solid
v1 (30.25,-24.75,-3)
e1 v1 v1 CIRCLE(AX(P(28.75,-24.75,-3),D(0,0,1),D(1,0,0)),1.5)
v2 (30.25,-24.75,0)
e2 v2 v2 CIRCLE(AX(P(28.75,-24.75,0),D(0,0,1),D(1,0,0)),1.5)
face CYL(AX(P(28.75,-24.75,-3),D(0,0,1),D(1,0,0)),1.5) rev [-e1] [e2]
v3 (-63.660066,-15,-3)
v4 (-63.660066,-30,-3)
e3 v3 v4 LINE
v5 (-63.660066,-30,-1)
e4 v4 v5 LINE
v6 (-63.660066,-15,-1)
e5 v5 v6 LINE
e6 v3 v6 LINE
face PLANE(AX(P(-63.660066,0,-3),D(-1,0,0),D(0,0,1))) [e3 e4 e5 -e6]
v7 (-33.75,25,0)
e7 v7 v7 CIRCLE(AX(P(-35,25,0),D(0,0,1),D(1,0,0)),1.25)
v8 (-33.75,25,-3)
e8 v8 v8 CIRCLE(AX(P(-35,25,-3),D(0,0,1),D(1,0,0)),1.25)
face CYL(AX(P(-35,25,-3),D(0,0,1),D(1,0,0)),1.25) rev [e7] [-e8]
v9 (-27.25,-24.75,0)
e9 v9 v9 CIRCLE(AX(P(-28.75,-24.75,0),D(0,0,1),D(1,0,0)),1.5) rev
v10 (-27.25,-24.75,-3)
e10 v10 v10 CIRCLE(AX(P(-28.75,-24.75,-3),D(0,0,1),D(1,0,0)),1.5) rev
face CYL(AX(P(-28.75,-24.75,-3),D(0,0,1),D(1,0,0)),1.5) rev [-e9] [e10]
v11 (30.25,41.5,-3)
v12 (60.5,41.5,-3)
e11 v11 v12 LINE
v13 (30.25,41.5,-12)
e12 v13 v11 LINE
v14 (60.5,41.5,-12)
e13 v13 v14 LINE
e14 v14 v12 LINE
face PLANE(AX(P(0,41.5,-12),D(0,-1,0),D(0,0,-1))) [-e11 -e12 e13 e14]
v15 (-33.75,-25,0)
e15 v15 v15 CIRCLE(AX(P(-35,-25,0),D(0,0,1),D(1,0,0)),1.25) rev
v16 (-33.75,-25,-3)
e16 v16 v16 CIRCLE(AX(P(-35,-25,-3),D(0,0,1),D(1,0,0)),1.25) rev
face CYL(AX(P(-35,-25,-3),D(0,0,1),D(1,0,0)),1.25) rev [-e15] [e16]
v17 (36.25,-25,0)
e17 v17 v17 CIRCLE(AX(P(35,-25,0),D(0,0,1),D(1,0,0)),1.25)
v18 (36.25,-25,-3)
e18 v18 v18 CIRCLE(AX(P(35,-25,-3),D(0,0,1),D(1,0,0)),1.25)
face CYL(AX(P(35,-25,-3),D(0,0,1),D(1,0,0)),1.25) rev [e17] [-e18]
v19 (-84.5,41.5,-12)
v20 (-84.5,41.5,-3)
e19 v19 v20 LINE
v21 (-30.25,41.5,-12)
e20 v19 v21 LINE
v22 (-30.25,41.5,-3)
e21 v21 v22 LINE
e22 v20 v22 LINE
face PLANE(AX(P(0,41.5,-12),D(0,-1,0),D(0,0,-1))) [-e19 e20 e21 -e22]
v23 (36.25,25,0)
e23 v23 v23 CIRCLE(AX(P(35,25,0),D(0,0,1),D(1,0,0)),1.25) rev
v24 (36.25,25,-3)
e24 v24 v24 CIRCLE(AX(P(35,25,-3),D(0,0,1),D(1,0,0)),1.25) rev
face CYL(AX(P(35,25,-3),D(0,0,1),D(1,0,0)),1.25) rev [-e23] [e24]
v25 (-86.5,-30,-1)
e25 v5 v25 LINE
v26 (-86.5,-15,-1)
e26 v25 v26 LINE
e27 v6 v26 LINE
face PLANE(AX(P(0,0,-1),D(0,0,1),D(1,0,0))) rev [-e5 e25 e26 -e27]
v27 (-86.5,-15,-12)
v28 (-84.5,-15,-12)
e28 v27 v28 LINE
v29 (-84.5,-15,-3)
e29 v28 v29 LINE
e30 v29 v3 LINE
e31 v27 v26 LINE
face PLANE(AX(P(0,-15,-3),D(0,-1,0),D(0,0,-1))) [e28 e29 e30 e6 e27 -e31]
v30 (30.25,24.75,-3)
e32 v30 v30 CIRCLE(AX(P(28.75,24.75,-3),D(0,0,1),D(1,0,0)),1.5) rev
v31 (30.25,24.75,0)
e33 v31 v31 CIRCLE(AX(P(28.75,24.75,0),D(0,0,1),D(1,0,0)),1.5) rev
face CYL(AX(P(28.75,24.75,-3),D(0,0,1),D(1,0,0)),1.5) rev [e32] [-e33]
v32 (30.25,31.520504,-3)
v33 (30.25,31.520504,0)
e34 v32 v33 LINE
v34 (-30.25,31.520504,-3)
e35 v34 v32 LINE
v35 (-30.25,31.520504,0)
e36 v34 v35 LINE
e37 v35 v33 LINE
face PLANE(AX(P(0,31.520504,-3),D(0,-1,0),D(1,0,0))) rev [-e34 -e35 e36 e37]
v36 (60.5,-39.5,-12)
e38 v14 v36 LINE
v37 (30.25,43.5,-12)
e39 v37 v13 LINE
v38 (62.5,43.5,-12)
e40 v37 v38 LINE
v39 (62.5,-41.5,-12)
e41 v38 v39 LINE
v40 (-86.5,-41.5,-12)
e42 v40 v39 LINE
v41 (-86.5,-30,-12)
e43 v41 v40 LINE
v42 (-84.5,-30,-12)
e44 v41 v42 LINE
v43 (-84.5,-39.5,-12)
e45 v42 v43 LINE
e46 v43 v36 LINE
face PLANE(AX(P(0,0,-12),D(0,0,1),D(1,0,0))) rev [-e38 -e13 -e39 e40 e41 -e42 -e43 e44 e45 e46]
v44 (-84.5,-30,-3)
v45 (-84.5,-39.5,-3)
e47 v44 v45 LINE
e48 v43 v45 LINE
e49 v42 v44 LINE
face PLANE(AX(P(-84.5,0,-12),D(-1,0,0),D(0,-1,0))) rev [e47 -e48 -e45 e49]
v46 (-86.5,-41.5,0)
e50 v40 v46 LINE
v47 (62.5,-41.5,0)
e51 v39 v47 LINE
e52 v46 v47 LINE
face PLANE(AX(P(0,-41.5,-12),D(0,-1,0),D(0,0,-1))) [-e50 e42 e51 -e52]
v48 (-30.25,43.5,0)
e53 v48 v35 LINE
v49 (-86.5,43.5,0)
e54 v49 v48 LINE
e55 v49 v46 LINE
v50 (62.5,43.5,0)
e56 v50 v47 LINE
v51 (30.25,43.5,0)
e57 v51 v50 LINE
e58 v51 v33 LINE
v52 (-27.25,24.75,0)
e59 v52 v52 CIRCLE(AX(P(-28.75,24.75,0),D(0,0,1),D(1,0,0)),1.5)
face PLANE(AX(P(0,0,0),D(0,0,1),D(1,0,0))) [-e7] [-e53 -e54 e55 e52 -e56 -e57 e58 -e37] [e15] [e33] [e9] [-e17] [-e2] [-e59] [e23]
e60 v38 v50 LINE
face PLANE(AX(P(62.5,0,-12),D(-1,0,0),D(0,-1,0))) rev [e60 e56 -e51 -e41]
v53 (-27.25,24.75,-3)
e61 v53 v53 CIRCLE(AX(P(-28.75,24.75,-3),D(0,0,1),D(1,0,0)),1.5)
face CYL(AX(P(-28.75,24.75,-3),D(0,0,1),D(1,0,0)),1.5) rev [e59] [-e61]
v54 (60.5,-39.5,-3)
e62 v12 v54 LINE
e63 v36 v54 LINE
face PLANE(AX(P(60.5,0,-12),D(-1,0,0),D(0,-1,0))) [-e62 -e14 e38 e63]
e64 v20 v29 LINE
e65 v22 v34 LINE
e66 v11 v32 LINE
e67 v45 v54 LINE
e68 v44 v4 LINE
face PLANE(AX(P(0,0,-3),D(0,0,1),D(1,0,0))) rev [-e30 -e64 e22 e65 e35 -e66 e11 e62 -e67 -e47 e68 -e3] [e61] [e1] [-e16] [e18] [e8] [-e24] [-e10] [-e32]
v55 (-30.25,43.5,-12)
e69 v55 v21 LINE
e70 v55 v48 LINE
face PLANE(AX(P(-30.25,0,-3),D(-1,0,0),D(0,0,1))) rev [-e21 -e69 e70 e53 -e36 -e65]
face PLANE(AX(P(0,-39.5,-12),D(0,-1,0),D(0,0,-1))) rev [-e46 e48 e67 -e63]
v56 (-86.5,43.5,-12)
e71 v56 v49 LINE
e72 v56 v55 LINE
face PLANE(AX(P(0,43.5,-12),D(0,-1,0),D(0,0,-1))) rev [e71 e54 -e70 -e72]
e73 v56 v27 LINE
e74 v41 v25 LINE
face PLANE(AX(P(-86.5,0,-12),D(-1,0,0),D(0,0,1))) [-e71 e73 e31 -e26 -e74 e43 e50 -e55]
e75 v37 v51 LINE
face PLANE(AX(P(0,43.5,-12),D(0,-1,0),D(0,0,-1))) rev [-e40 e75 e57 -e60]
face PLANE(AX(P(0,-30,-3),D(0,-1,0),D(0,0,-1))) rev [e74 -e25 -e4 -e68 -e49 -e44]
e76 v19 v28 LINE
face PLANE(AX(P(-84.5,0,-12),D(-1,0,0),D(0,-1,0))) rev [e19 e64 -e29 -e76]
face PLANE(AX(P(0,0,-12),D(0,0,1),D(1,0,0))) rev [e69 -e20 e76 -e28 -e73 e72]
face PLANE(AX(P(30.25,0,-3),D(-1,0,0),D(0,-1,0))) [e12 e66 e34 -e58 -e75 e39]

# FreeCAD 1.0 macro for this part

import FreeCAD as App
import Part
import Sketcher
from FreeCAD import Vector
Q = App.Units.Quantity

doc = App.newDocument("Part")
body = doc.addObject("PartDesign::Body", "Body")

# Sketch on XY plane
sketch1 = doc.addObject("Sketcher::SketchObject", "Sketch")
body.addObject(sketch1)
sketch1.AttachmentSupport = (doc.XY_Plane, [""])
sketch1.MapMode = "FlatFace"
sketch1.addGeometry([
    Part.LineSegment(Vector(-30.2, 31.5, 0), Vector(-30.2, 41.5, 0)),  # 0
    Part.LineSegment(Vector(-30.2, 41.5, 0), Vector(-84.5, 41.5, 0)),  # 1
    Part.LineSegment(Vector(-84.5, 41.5, 0), Vector(-84.5, -15, 0)),  # 2
    Part.LineSegment(Vector(-84.5, -15, 0), Vector(-63.7, -15, 0)),  # 3
    Part.LineSegment(Vector(-63.7, -15, 0), Vector(-63.7, -30, 0)),  # 4
    Part.LineSegment(Vector(-63.7, -30, 0), Vector(-84.5, -30, 0)),  # 5
    Part.LineSegment(Vector(-84.5, -30, 0), Vector(-84.5, -39.5, 0)),  # 6
    Part.LineSegment(Vector(-84.5, -39.5, 0), Vector(60.5, -39.5, 0)),  # 7
    Part.LineSegment(Vector(60.5, -39.5, 0), Vector(60.5, 41.5, 0)),  # 8
    Part.LineSegment(Vector(60.5, 41.5, 0), Vector(30.2, 41.5, 0)),  # 9
    Part.LineSegment(Vector(30.2, 41.5, 0), Vector(30.2, 31.5, 0)),  # 10
    Part.LineSegment(Vector(30.2, 31.5, 0), Vector(-30.2, 31.5, 0)),  # 11
    Part.Circle(Vector(-35, -25, 0), Vector(0, 0, 1), 1.2),  # 12
    Part.Circle(Vector(-28.8, -24.8, 0), Vector(0, 0, 1), 1.5),  # 13
    Part.Circle(Vector(28.8, -24.8, 0), Vector(0, 0, 1), 1.5),  # 14
    Part.Circle(Vector(35, -25, 0), Vector(0, 0, 1), 1.2),  # 15
    Part.Circle(Vector(-35, 25, 0), Vector(0, 0, 1), 1.2),  # 16
    Part.Circle(Vector(-28.8, 24.8, 0), Vector(0, 0, 1), 1.5),  # 17
    Part.Circle(Vector(28.8, 24.8, 0), Vector(0, 0, 1), 1.5),  # 18
    Part.Circle(Vector(35, 25, 0), Vector(0, 0, 1), 1.2),  # 19
], False)
sketch1.addConstraint([
    Sketcher.Constraint("Coincident", 0, 2, 1, 1),
    Sketcher.Constraint("Coincident", 1, 2, 2, 1),
    Sketcher.Constraint("Coincident", 2, 2, 3, 1),
    Sketcher.Constraint("Coincident", 3, 2, 4, 1),
    Sketcher.Constraint("Coincident", 4, 2, 5, 1),
    Sketcher.Constraint("Coincident", 5, 2, 6, 1),
    Sketcher.Constraint("Coincident", 6, 2, 7, 1),
    Sketcher.Constraint("Coincident", 7, 2, 8, 1),
    Sketcher.Constraint("Coincident", 8, 2, 9, 1),
    Sketcher.Constraint("Coincident", 9, 2, 10, 1),
    Sketcher.Constraint("Coincident", 10, 2, 11, 1),
    Sketcher.Constraint("Coincident", 11, 2, 0, 1),
    Sketcher.Constraint("Vertical", 0),
    Sketcher.Constraint("Horizontal", 1),
    Sketcher.Constraint("Vertical", 2),
    Sketcher.Constraint("Horizontal", 3),
    Sketcher.Constraint("Vertical", 4),
    Sketcher.Constraint("Horizontal", 5),
    Sketcher.Constraint("Vertical", 6),
    Sketcher.Constraint("Horizontal", 7),
    Sketcher.Constraint("Vertical", 8),
    Sketcher.Constraint("Horizontal", 9),
    Sketcher.Constraint("Vertical", 10),
    Sketcher.Constraint("Horizontal", 11),
    Sketcher.Constraint("Equal", 13, 14),
    Sketcher.Constraint("Equal", 12, 15),
    Sketcher.Constraint("Equal", 15, 16),
    Sketcher.Constraint("Equal", 14, 17),
    Sketcher.Constraint("Equal", 17, 18),
    Sketcher.Constraint("Equal", 16, 19),
    Sketcher.Constraint("Symmetric", 15, 3, 16, 3, -1, 1),
    Sketcher.Constraint("Symmetric", 14, 3, 17, 3, -1, 1),
    Sketcher.Constraint("Symmetric", 13, 3, 18, 3, -1, 1),
    Sketcher.Constraint("Symmetric", 12, 3, 19, 3, -1, 1),
    Sketcher.Constraint("Symmetric", 13, 3, 14, 3, -2),
    Sketcher.Constraint("Symmetric", 12, 3, 15, 3, -2),
    Sketcher.Constraint("Symmetric", 0, 2, 9, 2, -2),
    Sketcher.Constraint("Vertical", 2, 2, 5, 2),
    Sketcher.Constraint("Diameter", 13, Q("3 mm")),
    Sketcher.Constraint("Diameter", 12, Q("2.5 mm")),
    Sketcher.Constraint("DistanceX", 7, 1, 7, 2, Q("145 mm")),
    Sketcher.Constraint("DistanceY", 4, 2, 4, 1, Q("15 mm")),
    Sketcher.Constraint("DistanceY", 8, 1, 8, 2, Q("81 mm")),
    Sketcher.Constraint("DistanceX", 11, 2, 11, 1, Q("60.5 mm")),
    Sketcher.Constraint("DistanceY", 2, 2, 2, 1, Q("56.5 mm")),
    Sketcher.Constraint("DistanceX", 12, 3, -1, 1, Q("35 mm")),
    Sketcher.Constraint("DistanceY", 12, 3, -1, 1, Q("25 mm")),
    Sketcher.Constraint("DistanceY", 2, 2, -1, 1, Q("15 mm")),
    Sketcher.Constraint("DistanceX", 0, 2, 18, 3, Q("59 mm")),
    Sketcher.Constraint("DistanceX", 1, 2, 1, 1, Q("54.25 mm")),
    Sketcher.Constraint("DistanceY", 13, 3, 17, 3, Q("49.5 mm")),
    Sketcher.Constraint("DistanceX", 3, 1, 3, 2, Q("20.839934 mm")),
    Sketcher.Constraint("DistanceY", 0, 1, 0, 2, Q("9.979496 mm")),
])
pad1 = doc.addObject("PartDesign::Pad", "Pad")
body.addObject(pad1)
pad1.Profile = sketch1
pad1.Length = 3
pad1.Reversed = True

# Sketch on XY plane
sketch2 = doc.addObject("Sketcher::SketchObject", "Sketch001")
body.addObject(sketch2)
sketch2.AttachmentSupport = (doc.XY_Plane, [""])
sketch2.MapMode = "FlatFace"
sketch2.addGeometry([
    Part.LineSegment(Vector(-30.2, 43.5, 0), Vector(-86.5, 43.5, 0)),  # 0
    Part.LineSegment(Vector(-86.5, 43.5, 0), Vector(-86.5, -15, 0)),  # 1
    Part.LineSegment(Vector(-86.5, -15, 0), Vector(-84.5, -15, 0)),  # 2
    Part.LineSegment(Vector(-84.5, -15, 0), Vector(-84.5, 41.5, 0)),  # 3
    Part.LineSegment(Vector(-84.5, 41.5, 0), Vector(-30.2, 41.5, 0)),  # 4
    Part.LineSegment(Vector(-30.2, 41.5, 0), Vector(-30.2, 43.5, 0)),  # 5
    Part.LineSegment(Vector(62.5, 43.5, 0), Vector(30.2, 43.5, 0)),  # 6
    Part.LineSegment(Vector(30.2, 43.5, 0), Vector(30.2, 41.5, 0)),  # 7
    Part.LineSegment(Vector(30.2, 41.5, 0), Vector(60.5, 41.5, 0)),  # 8
    Part.LineSegment(Vector(60.5, 41.5, 0), Vector(60.5, -39.5, 0)),  # 9
    Part.LineSegment(Vector(60.5, -39.5, 0), Vector(-84.5, -39.5, 0)),  # 10
    Part.LineSegment(Vector(-84.5, -39.5, 0), Vector(-84.5, -30, 0)),  # 11
    Part.LineSegment(Vector(-84.5, -30, 0), Vector(-86.5, -30, 0)),  # 12
    Part.LineSegment(Vector(-86.5, -30, 0), Vector(-86.5, -41.5, 0)),  # 13
    Part.LineSegment(Vector(-86.5, -41.5, 0), Vector(62.5, -41.5, 0)),  # 14
    Part.LineSegment(Vector(62.5, -41.5, 0), Vector(62.5, 43.5, 0)),  # 15
], False)
sketch2.addConstraint([
    Sketcher.Constraint("Coincident", 0, 2, 1, 1),
    Sketcher.Constraint("Coincident", 1, 2, 2, 1),
    Sketcher.Constraint("Coincident", 2, 2, 3, 1),
    Sketcher.Constraint("Coincident", 3, 2, 4, 1),
    Sketcher.Constraint("Coincident", 4, 2, 5, 1),
    Sketcher.Constraint("Coincident", 5, 2, 0, 1),
    Sketcher.Constraint("Coincident", 6, 2, 7, 1),
    Sketcher.Constraint("Coincident", 7, 2, 8, 1),
    Sketcher.Constraint("Coincident", 8, 2, 9, 1),
    Sketcher.Constraint("Coincident", 9, 2, 10, 1),
    Sketcher.Constraint("Coincident", 10, 2, 11, 1),
    Sketcher.Constraint("Coincident", 11, 2, 12, 1),
    Sketcher.Constraint("Coincident", 12, 2, 13, 1),
    Sketcher.Constraint("Coincident", 13, 2, 14, 1),
    Sketcher.Constraint("Coincident", 14, 2, 15, 1),
    Sketcher.Constraint("Coincident", 15, 2, 6, 1),
    Sketcher.Constraint("Horizontal", 0),
    Sketcher.Constraint("Vertical", 1),
    Sketcher.Constraint("Horizontal", 2),
    Sketcher.Constraint("Vertical", 3),
    Sketcher.Constraint("Horizontal", 4),
    Sketcher.Constraint("Vertical", 5),
    Sketcher.Constraint("Horizontal", 6),
    Sketcher.Constraint("Vertical", 7),
    Sketcher.Constraint("Horizontal", 8),
    Sketcher.Constraint("Vertical", 9),
    Sketcher.Constraint("Horizontal", 10),
    Sketcher.Constraint("Vertical", 11),
    Sketcher.Constraint("Horizontal", 12),
    Sketcher.Constraint("Vertical", 13),
    Sketcher.Constraint("Horizontal", 14),
    Sketcher.Constraint("Vertical", 15),
    Sketcher.Constraint("Symmetric", 5, 2, 6, 2, -2),
    Sketcher.Constraint("Horizontal", 4, 2, 7, 2),
    Sketcher.Constraint("Vertical", 3, 2, 10, 2),
    Sketcher.Constraint("Vertical", 1, 2, 12, 2),
    Sketcher.Constraint("Equal", 12, 5),
    Sketcher.Constraint("DistanceX", 2, 1, 2, 2, Q("2 mm")),
    Sketcher.Constraint("DistanceX", 10, 2, 10, 1, Q("145 mm")),
    Sketcher.Constraint("DistanceX", 14, 1, 14, 2, Q("149 mm")),
    Sketcher.Constraint("DistanceY", 9, 2, 9, 1, Q("81 mm")),
    Sketcher.Constraint("DistanceY", 15, 1, 15, 2, Q("85 mm")),
    Sketcher.Constraint("DistanceY", 1, 2, 1, 1, Q("58.5 mm")),
    Sketcher.Constraint("DistanceY", 11, 1, 11, 2, Q("9.5 mm")),
    Sketcher.Constraint("DistanceY", 1, 2, -1, 1, Q("15 mm")),
    Sketcher.Constraint("DistanceX", 0, 2, 0, 1, Q("56.25 mm")),
    Sketcher.Constraint("DistanceX", 6, 2, 6, 1, Q("32.25 mm")),
])
pad2 = doc.addObject("PartDesign::Pad", "Pad001")
body.addObject(pad2)
pad2.Profile = sketch2
pad2.Length = 12
pad2.Reversed = True

# Sketch on XY plane
sketch3 = doc.addObject("Sketcher::SketchObject", "Sketch002")
body.addObject(sketch3)
sketch3.AttachmentSupport = (doc.XY_Plane, [""])
sketch3.MapMode = "FlatFace"
sketch3.addGeometry([
    Part.LineSegment(Vector(-64, -30, 0), Vector(-64, -15, 0)),
    Part.LineSegment(Vector(-64, -15, 0), Vector(-86, -15, 0)),
    Part.LineSegment(Vector(-86, -15, 0), Vector(-86, -30, 0)),
    Part.LineSegment(Vector(-86, -30, 0), Vector(-64, -30, 0)),
], False)
sketch3.addConstraint([
    Sketcher.Constraint("Coincident", 0, 2, 1, 1),
    Sketcher.Constraint("Coincident", 1, 2, 2, 1),
    Sketcher.Constraint("Coincident", 2, 2, 3, 1),
    Sketcher.Constraint("Coincident", 3, 2, 0, 1),
    Sketcher.Constraint("Vertical", 0),
    Sketcher.Constraint("Horizontal", 1),
    Sketcher.Constraint("Vertical", 2),
    Sketcher.Constraint("Horizontal", 3),
    Sketcher.Constraint("DistanceY", 0, 1, 0, 2, Q("15 mm")),
    Sketcher.Constraint("DistanceY", 0, 2, -1, 1, Q("15 mm")),
    Sketcher.Constraint("DistanceX", 1, 2, -1, 1, Q("86.5 mm")),
    Sketcher.Constraint("DistanceX", 1, 2, 1, 1, Q("22.839934 mm")),
])
pad3 = doc.addObject("PartDesign::Pad", "Pad002")
body.addObject(pad3)
pad3.Profile = sketch3
pad3.Length = 1
pad3.Reversed = True

doc.recompute()
